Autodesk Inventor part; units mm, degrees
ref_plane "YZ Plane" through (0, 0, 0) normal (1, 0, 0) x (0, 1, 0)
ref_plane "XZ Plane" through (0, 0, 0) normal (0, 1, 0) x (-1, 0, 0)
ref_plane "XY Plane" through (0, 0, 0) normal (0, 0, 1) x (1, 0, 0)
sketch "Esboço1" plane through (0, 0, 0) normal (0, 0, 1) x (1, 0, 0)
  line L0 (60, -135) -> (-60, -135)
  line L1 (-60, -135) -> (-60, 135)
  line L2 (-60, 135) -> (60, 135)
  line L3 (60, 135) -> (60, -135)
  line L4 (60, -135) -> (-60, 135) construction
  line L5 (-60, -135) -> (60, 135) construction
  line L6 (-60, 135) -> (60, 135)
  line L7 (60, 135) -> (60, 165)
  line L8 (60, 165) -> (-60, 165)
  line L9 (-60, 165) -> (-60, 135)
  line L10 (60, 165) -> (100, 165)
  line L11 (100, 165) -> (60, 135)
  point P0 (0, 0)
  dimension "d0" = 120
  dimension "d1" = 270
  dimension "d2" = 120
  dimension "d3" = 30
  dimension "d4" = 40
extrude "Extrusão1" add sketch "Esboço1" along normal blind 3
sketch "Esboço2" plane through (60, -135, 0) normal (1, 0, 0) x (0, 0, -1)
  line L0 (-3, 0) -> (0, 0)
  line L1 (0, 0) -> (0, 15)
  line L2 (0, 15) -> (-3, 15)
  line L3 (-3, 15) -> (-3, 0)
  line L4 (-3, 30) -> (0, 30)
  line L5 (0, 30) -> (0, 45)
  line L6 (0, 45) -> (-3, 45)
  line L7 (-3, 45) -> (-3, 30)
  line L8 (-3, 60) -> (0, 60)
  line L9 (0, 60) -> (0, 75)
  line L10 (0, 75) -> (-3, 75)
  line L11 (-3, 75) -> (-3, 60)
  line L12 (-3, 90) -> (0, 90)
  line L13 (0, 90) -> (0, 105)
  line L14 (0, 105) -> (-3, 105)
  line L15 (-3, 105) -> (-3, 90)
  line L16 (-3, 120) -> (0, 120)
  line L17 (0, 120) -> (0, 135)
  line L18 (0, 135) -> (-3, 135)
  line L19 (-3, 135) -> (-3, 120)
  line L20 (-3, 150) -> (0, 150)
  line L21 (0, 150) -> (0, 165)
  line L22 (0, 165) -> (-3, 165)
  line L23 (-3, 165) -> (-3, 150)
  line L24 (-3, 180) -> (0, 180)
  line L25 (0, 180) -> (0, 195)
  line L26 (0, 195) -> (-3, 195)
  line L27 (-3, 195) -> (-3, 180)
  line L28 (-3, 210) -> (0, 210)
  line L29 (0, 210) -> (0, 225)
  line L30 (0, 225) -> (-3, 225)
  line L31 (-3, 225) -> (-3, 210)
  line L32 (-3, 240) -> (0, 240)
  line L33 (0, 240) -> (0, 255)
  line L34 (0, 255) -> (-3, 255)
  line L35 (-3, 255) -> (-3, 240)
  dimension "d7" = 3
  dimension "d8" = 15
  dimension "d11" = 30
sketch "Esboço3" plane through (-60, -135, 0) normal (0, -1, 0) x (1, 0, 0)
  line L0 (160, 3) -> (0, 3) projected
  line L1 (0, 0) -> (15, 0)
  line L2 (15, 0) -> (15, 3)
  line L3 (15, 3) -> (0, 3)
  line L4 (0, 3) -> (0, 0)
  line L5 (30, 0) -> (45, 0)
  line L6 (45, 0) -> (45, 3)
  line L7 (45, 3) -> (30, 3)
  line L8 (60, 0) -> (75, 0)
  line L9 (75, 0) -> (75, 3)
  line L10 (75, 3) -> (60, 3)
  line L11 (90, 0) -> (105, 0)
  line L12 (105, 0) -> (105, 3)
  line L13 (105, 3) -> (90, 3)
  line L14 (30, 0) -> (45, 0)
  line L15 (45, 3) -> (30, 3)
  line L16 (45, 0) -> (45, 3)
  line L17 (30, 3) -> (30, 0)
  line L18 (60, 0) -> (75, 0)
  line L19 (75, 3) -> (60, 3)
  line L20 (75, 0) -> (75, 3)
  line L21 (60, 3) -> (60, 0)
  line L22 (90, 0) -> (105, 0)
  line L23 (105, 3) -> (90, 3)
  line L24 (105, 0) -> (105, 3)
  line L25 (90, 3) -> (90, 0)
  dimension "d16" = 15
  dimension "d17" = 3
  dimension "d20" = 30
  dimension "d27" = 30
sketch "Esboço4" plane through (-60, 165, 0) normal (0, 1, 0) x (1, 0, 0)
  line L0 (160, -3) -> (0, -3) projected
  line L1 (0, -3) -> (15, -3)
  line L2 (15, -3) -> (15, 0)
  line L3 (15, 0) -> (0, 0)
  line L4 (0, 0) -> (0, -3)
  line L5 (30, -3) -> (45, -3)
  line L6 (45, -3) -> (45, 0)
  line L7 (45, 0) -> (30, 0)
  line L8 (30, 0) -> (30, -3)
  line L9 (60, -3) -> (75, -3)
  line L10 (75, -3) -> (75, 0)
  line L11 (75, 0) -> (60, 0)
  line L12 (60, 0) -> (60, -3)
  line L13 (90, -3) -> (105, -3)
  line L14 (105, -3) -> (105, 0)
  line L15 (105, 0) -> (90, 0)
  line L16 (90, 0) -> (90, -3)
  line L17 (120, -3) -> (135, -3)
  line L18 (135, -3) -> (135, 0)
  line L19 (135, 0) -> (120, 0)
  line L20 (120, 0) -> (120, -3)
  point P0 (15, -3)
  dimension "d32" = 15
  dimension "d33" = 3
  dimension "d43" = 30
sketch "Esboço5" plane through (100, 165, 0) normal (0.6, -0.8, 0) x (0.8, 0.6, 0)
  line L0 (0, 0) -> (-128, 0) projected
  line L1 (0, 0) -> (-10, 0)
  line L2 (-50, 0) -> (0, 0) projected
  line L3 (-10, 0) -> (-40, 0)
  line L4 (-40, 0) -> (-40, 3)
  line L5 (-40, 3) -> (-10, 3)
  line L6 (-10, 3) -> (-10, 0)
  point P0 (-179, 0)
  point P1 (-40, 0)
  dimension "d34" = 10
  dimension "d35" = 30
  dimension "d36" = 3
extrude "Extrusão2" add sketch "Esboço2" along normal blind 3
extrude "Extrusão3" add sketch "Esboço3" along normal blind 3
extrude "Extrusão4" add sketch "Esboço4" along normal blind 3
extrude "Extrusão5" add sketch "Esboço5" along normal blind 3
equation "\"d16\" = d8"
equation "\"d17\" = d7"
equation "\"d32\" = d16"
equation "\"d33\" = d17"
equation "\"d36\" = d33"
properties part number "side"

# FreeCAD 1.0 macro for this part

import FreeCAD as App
import Part
import Sketcher
from FreeCAD import Vector
Q = App.Units.Quantity

doc = App.newDocument("Part")
body = doc.addObject("PartDesign::Body", "Body")

# Sketch on XY plane
sketch1 = body.newObject("Sketcher::SketchObject", "Sketch")
sketch1.AttachmentSupport = (doc.getObject("XY_Plane"), [""])
sketch1.MapMode = "FlatFace"
sketch1.addGeometry([
    Part.LineSegment(Vector(-60, -135, 0), Vector(60, -135, 0)),  # 0
    Part.LineSegment(Vector(60, -135, 0), Vector(60, 135, 0)),  # 1
    Part.LineSegment(Vector(60, 135, 0), Vector(100, 165, 0)),  # 2
    Part.LineSegment(Vector(100, 165, 0), Vector(-60, 165, 0)),  # 3
    Part.LineSegment(Vector(-60, 165, 0), Vector(-60, -135, 0)),  # 4
], False)
sketch1.addConstraint([
    Sketcher.Constraint("Coincident", 0, 2, 1, 1),
    Sketcher.Constraint("Coincident", 1, 2, 2, 1),
    Sketcher.Constraint("Coincident", 2, 2, 3, 1),
    Sketcher.Constraint("Coincident", 3, 2, 4, 1),
    Sketcher.Constraint("Coincident", 4, 2, 0, 1),
    Sketcher.Constraint("Horizontal", 0),
    Sketcher.Constraint("Vertical", 1),
    Sketcher.Constraint("Horizontal", 3),
    Sketcher.Constraint("Vertical", 4),
    Sketcher.Constraint("Symmetric", 1, 2, 4, 2, -1, 1),
    Sketcher.Constraint("DistanceX", 0, 1, 0, 2, Q("120 mm")),
    Sketcher.Constraint("DistanceY", 1, 1, 1, 2, Q("270 mm")),
    Sketcher.Constraint("DistanceX", 1, 2, 2, 2, Q("40 mm")),
    Sketcher.Constraint("DistanceY", 1, 2, 2, 2, Q("30 mm")),
])
pad1 = body.newObject("PartDesign::Pad", "Pad")
pad1.Profile = sketch1
pad1.Length = 3

# Sketch on YZ plane
sketch2 = body.newObject("Sketcher::SketchObject", "Sketch001")
sketch2.AttachmentSupport = (doc.getObject("YZ_Plane"), [""])
sketch2.MapMode = "FlatFace"
sketch2.AttachmentOffset = App.Placement(Vector(0, 0, 60), App.Rotation())
sketch2.addGeometry([
    Part.LineSegment(Vector(-120, 3, 0), Vector(-135, 3, 0)),  # 0
    Part.LineSegment(Vector(-135, 3, 0), Vector(-135, 0, 0)),  # 1
    Part.LineSegment(Vector(-135, 0, 0), Vector(-120, 0, 0)),  # 2
    Part.LineSegment(Vector(-120, 0, 0), Vector(-120, 3, 0)),  # 3
    Part.LineSegment(Vector(-90, 3, 0), Vector(-105, 3, 0)),  # 4
    Part.LineSegment(Vector(-105, 3, 0), Vector(-105, 0, 0)),  # 5
    Part.LineSegment(Vector(-105, 0, 0), Vector(-90, 0, 0)),  # 6
    Part.LineSegment(Vector(-90, 0, 0), Vector(-90, 3, 0)),  # 7
    Part.LineSegment(Vector(-60, 3, 0), Vector(-75, 3, 0)),  # 8
    Part.LineSegment(Vector(-75, 3, 0), Vector(-75, 0, 0)),  # 9
    Part.LineSegment(Vector(-75, 0, 0), Vector(-60, 0, 0)),  # 10
    Part.LineSegment(Vector(-60, 0, 0), Vector(-60, 3, 0)),  # 11
    Part.LineSegment(Vector(-30, 3, 0), Vector(-45, 3, 0)),  # 12
    Part.LineSegment(Vector(-45, 3, 0), Vector(-45, 0, 0)),  # 13
    Part.LineSegment(Vector(-45, 0, 0), Vector(-30, 0, 0)),  # 14
    Part.LineSegment(Vector(-30, 0, 0), Vector(-30, 3, 0)),  # 15
    Part.LineSegment(Vector(0, 3, 0), Vector(-15, 3, 0)),  # 16
    Part.LineSegment(Vector(-15, 3, 0), Vector(-15, 0, 0)),  # 17
    Part.LineSegment(Vector(-15, 0, 0), Vector(0, 0, 0)),  # 18
    Part.LineSegment(Vector(0, 0, 0), Vector(0, 3, 0)),  # 19
    Part.LineSegment(Vector(30, 3, 0), Vector(15, 3, 0)),  # 20
    Part.LineSegment(Vector(15, 3, 0), Vector(15, 0, 0)),  # 21
    Part.LineSegment(Vector(15, 0, 0), Vector(30, 0, 0)),  # 22
    Part.LineSegment(Vector(30, 0, 0), Vector(30, 3, 0)),  # 23
    Part.LineSegment(Vector(60, 3, 0), Vector(45, 3, 0)),  # 24
    Part.LineSegment(Vector(45, 3, 0), Vector(45, 0, 0)),  # 25
    Part.LineSegment(Vector(45, 0, 0), Vector(60, 0, 0)),  # 26
    Part.LineSegment(Vector(60, 0, 0), Vector(60, 3, 0)),  # 27
    Part.LineSegment(Vector(90, 3, 0), Vector(75, 3, 0)),  # 28
    Part.LineSegment(Vector(75, 3, 0), Vector(75, 0, 0)),  # 29
    Part.LineSegment(Vector(75, 0, 0), Vector(90, 0, 0)),  # 30
    Part.LineSegment(Vector(90, 0, 0), Vector(90, 3, 0)),  # 31
    Part.LineSegment(Vector(120, 3, 0), Vector(105, 3, 0)),  # 32
    Part.LineSegment(Vector(105, 3, 0), Vector(105, 0, 0)),  # 33
    Part.LineSegment(Vector(105, 0, 0), Vector(120, 0, 0)),  # 34
    Part.LineSegment(Vector(120, 0, 0), Vector(120, 3, 0)),  # 35
], False)
sketch2.addConstraint([
    Sketcher.Constraint("Coincident", 0, 2, 1, 1),
    Sketcher.Constraint("Coincident", 1, 2, 2, 1),
    Sketcher.Constraint("Coincident", 2, 2, 3, 1),
    Sketcher.Constraint("Coincident", 3, 2, 0, 1),
    Sketcher.Constraint("Coincident", 4, 2, 5, 1),
    Sketcher.Constraint("Coincident", 5, 2, 6, 1),
    Sketcher.Constraint("Coincident", 6, 2, 7, 1),
    Sketcher.Constraint("Coincident", 7, 2, 4, 1),
    Sketcher.Constraint("Coincident", 8, 2, 9, 1),
    Sketcher.Constraint("Coincident", 9, 2, 10, 1),
    Sketcher.Constraint("Coincident", 10, 2, 11, 1),
    Sketcher.Constraint("Coincident", 11, 2, 8, 1),
    Sketcher.Constraint("Coincident", 12, 2, 13, 1),
    Sketcher.Constraint("Coincident", 13, 2, 14, 1),
    Sketcher.Constraint("Coincident", 14, 2, 15, 1),
    Sketcher.Constraint("Coincident", 15, 2, 12, 1),
    Sketcher.Constraint("Coincident", 16, 2, 17, 1),
    Sketcher.Constraint("Coincident", 17, 2, 18, 1),
    Sketcher.Constraint("Coincident", 18, 2, 19, 1),
    Sketcher.Constraint("Coincident", 19, 2, 16, 1),
    Sketcher.Constraint("Coincident", 20, 2, 21, 1),
    Sketcher.Constraint("Coincident", 21, 2, 22, 1),
    Sketcher.Constraint("Coincident", 22, 2, 23, 1),
    Sketcher.Constraint("Coincident", 23, 2, 20, 1),
    Sketcher.Constraint("Coincident", 24, 2, 25, 1),
    Sketcher.Constraint("Coincident", 25, 2, 26, 1),
    Sketcher.Constraint("Coincident", 26, 2, 27, 1),
    Sketcher.Constraint("Coincident", 27, 2, 24, 1),
    Sketcher.Constraint("Coincident", 28, 2, 29, 1),
    Sketcher.Constraint("Coincident", 29, 2, 30, 1),
    Sketcher.Constraint("Coincident", 30, 2, 31, 1),
    Sketcher.Constraint("Coincident", 31, 2, 28, 1),
    Sketcher.Constraint("Coincident", 32, 2, 33, 1),
    Sketcher.Constraint("Coincident", 33, 2, 34, 1),
    Sketcher.Constraint("Coincident", 34, 2, 35, 1),
    Sketcher.Constraint("Coincident", 35, 2, 32, 1),
    Sketcher.Constraint("Horizontal", 0),
    Sketcher.Constraint("Vertical", 1),
    Sketcher.Constraint("Horizontal", 2),
    Sketcher.Constraint("Vertical", 3),
    Sketcher.Constraint("Horizontal", 4),
    Sketcher.Constraint("Vertical", 5),
    Sketcher.Constraint("Horizontal", 6),
    Sketcher.Constraint("Vertical", 7),
    Sketcher.Constraint("Horizontal", 8),
    Sketcher.Constraint("Vertical", 9),
    Sketcher.Constraint("Horizontal", 10),
    Sketcher.Constraint("Vertical", 11),
    Sketcher.Constraint("Horizontal", 12),
    Sketcher.Constraint("Vertical", 13),
    Sketcher.Constraint("Horizontal", 14),
    Sketcher.Constraint("Vertical", 15),
    Sketcher.Constraint("Horizontal", 16),
    Sketcher.Constraint("Vertical", 17),
    Sketcher.Constraint("Horizontal", 18),
    Sketcher.Constraint("Vertical", 19),
    Sketcher.Constraint("Horizontal", 20),
    Sketcher.Constraint("Vertical", 21),
    Sketcher.Constraint("Horizontal", 22),
    Sketcher.Constraint("Vertical", 23),
    Sketcher.Constraint("Horizontal", 24),
    Sketcher.Constraint("Vertical", 25),
    Sketcher.Constraint("Horizontal", 26),
    Sketcher.Constraint("Vertical", 27),
    Sketcher.Constraint("Horizontal", 28),
    Sketcher.Constraint("Vertical", 29),
    Sketcher.Constraint("Horizontal", 30),
    Sketcher.Constraint("Vertical", 31),
    Sketcher.Constraint("Horizontal", 32),
    Sketcher.Constraint("Vertical", 33),
    Sketcher.Constraint("Horizontal", 34),
    Sketcher.Constraint("Vertical", 35),
    Sketcher.Constraint("Coincident", 18, 2, -1, 1),
    Sketcher.Constraint("Symmetric", 17, 2, 21, 2, -1, 1),
    Sketcher.Constraint("Symmetric", 14, 2, 22, 2, -1, 1),
    Sketcher.Constraint("Symmetric", 13, 2, 25, 2, -1, 1),
    Sketcher.Constraint("Symmetric", 10, 2, 26, 2, -1, 1),
    Sketcher.Constraint("Symmetric", 9, 2, 29, 2, -1, 1),
    Sketcher.Constraint("Symmetric", 6, 2, 30, 2, -1, 1),
    Sketcher.Constraint("Symmetric", 5, 2, 33, 2, -1, 1),
    Sketcher.Constraint("Symmetric", 2, 2, 34, 2, -1, 1),
    Sketcher.Constraint("Horizontal", 3, 2, 4, 2),
    Sketcher.Constraint("Horizontal", 7, 2, 8, 2),
    Sketcher.Constraint("Horizontal", 11, 2, 12, 2),
    Sketcher.Constraint("Horizontal", 15, 2, 16, 2),
    Sketcher.Constraint("Horizontal", 19, 2, 20, 2),
    Sketcher.Constraint("Horizontal", 23, 2, 24, 2),
    Sketcher.Constraint("Horizontal", 27, 2, 28, 2),
    Sketcher.Constraint("Horizontal", 31, 2, 32, 2),
    Sketcher.Constraint("Equal", 2, 4),
    Sketcher.Constraint("Equal", 6, 8),
    Sketcher.Constraint("Equal", 10, 12),
    Sketcher.Constraint("Equal", 14, 16),
    Sketcher.Constraint("Equal", 18, 20),
    Sketcher.Constraint("Equal", 22, 24),
    Sketcher.Constraint("Equal", 26, 28),
    Sketcher.Constraint("Equal", 30, 32),
    Sketcher.Constraint("DistanceX", 0, 2, 0, 1, Q("15 mm")),
    Sketcher.Constraint("DistanceY", 1, 2, 1, 1, Q("3 mm")),
])
pad2 = body.newObject("PartDesign::Pad", "Pad001")
pad2.Profile = sketch2
pad2.Length = 3

# Sketch on XZ plane
sketch3 = body.newObject("Sketcher::SketchObject", "Sketch002")
sketch3.AttachmentSupport = (doc.getObject("XZ_Plane"), [""])
sketch3.MapMode = "FlatFace"
sketch3.AttachmentOffset = App.Placement(Vector(0, 0, 135), App.Rotation())
sketch3.addGeometry([
    Part.LineSegment(Vector(45, 0, 0), Vector(45, 3, 0)),  # 0
    Part.LineSegment(Vector(45, 3, 0), Vector(30, 3, 0)),  # 1
    Part.LineSegment(Vector(30, 3, 0), Vector(30, 0, 0)),  # 2
    Part.LineSegment(Vector(30, 0, 0), Vector(45, 0, 0)),  # 3
    Part.LineSegment(Vector(-45, 0, 0), Vector(-45, 3, 0)),  # 4
    Part.LineSegment(Vector(-45, 3, 0), Vector(-60, 3, 0)),  # 5
    Part.LineSegment(Vector(-60, 3, 0), Vector(-60, 0, 0)),  # 6
    Part.LineSegment(Vector(-60, 0, 0), Vector(-45, 0, 0)),  # 7
    Part.LineSegment(Vector(-15, 0, 0), Vector(-15, 3, 0)),  # 8
    Part.LineSegment(Vector(-15, 3, 0), Vector(-30, 3, 0)),  # 9
    Part.LineSegment(Vector(-30, 3, 0), Vector(-30, 0, 0)),  # 10
    Part.LineSegment(Vector(-30, 0, 0), Vector(-15, 0, 0)),  # 11
    Part.LineSegment(Vector(15, 0, 0), Vector(15, 3, 0)),  # 12
    Part.LineSegment(Vector(15, 3, 0), Vector(0, 3, 0)),  # 13
    Part.LineSegment(Vector(0, 3, 0), Vector(0, 0, 0)),  # 14
    Part.LineSegment(Vector(0, 0, 0), Vector(15, 0, 0)),  # 15
], False)
sketch3.addConstraint([
    Sketcher.Constraint("Coincident", 0, 2, 1, 1),
    Sketcher.Constraint("Coincident", 1, 2, 2, 1),
    Sketcher.Constraint("Coincident", 2, 2, 3, 1),
    Sketcher.Constraint("Coincident", 3, 2, 0, 1),
    Sketcher.Constraint("Coincident", 4, 2, 5, 1),
    Sketcher.Constraint("Coincident", 5, 2, 6, 1),
    Sketcher.Constraint("Coincident", 6, 2, 7, 1),
    Sketcher.Constraint("Coincident", 7, 2, 4, 1),
    Sketcher.Constraint("Coincident", 8, 2, 9, 1),
    Sketcher.Constraint("Coincident", 9, 2, 10, 1),
    Sketcher.Constraint("Coincident", 10, 2, 11, 1),
    Sketcher.Constraint("Coincident", 11, 2, 8, 1),
    Sketcher.Constraint("Coincident", 12, 2, 13, 1),
    Sketcher.Constraint("Coincident", 13, 2, 14, 1),
    Sketcher.Constraint("Coincident", 14, 2, 15, 1),
    Sketcher.Constraint("Coincident", 15, 2, 12, 1),
    Sketcher.Constraint("Vertical", 0),
    Sketcher.Constraint("Horizontal", 1),
    Sketcher.Constraint("Vertical", 2),
    Sketcher.Constraint("Horizontal", 3),
    Sketcher.Constraint("Vertical", 4),
    Sketcher.Constraint("Horizontal", 5),
    Sketcher.Constraint("Vertical", 6),
    Sketcher.Constraint("Horizontal", 7),
    Sketcher.Constraint("Vertical", 8),
    Sketcher.Constraint("Horizontal", 9),
    Sketcher.Constraint("Vertical", 10),
    Sketcher.Constraint("Horizontal", 11),
    Sketcher.Constraint("Vertical", 12),
    Sketcher.Constraint("Horizontal", 13),
    Sketcher.Constraint("Vertical", 14),
    Sketcher.Constraint("Horizontal", 15),
    Sketcher.Constraint("Coincident", 14, 2, -1, 1),
    Sketcher.Constraint("Symmetric", 3, 2, 7, 2, -1, 1),
    Sketcher.Constraint("Symmetric", 2, 2, 10, 2, -1, 1),
    Sketcher.Constraint("Symmetric", 11, 2, 15, 2, -1, 1),
    Sketcher.Constraint("Horizontal", 1, 2, 4, 2),
    Sketcher.Constraint("Horizontal", 5, 2, 8, 2),
    Sketcher.Constraint("Horizontal", 9, 2, 12, 2),
    Sketcher.Constraint("Equal", 3, 5),
    Sketcher.Constraint("Equal", 7, 9),
    Sketcher.Constraint("Equal", 11, 13),
    Sketcher.Constraint("DistanceX", 1, 2, 1, 1, Q("15 mm")),
    Sketcher.Constraint("DistanceY", 0, 1, 0, 2, Q("3 mm")),
])
pad3 = body.newObject("PartDesign::Pad", "Pad002")
pad3.Profile = sketch3
pad3.Length = 3

# Sketch on XZ plane
sketch4 = body.newObject("Sketcher::SketchObject", "Sketch003")
sketch4.AttachmentSupport = (doc.getObject("XZ_Plane"), [""])
sketch4.MapMode = "FlatFace"
sketch4.AttachmentOffset = App.Placement(Vector(0, 0, -165), App.Rotation())
sketch4.addGeometry([
    Part.LineSegment(Vector(-60, 3, 0), Vector(-45, 3, 0)),  # 0
    Part.LineSegment(Vector(-45, 3, 0), Vector(-45, 0, 0)),  # 1
    Part.LineSegment(Vector(-45, 0, 0), Vector(-60, 0, 0)),  # 2
    Part.LineSegment(Vector(-60, 0, 0), Vector(-60, 3, 0)),  # 3
    Part.LineSegment(Vector(-30, 3, 0), Vector(-15, 3, 0)),  # 4
    Part.LineSegment(Vector(-15, 3, 0), Vector(-15, 0, 0)),  # 5
    Part.LineSegment(Vector(-15, 0, 0), Vector(-30, 0, 0)),  # 6
    Part.LineSegment(Vector(-30, 0, 0), Vector(-30, 3, 0)),  # 7
    Part.LineSegment(Vector(0, 3, 0), Vector(15, 3, 0)),  # 8
    Part.LineSegment(Vector(15, 3, 0), Vector(15, 0, 0)),  # 9
    Part.LineSegment(Vector(15, 0, 0), Vector(0, 0, 0)),  # 10
    Part.LineSegment(Vector(0, 0, 0), Vector(0, 3, 0)),  # 11
    Part.LineSegment(Vector(30, 3, 0), Vector(45, 3, 0)),  # 12
    Part.LineSegment(Vector(45, 3, 0), Vector(45, 0, 0)),  # 13
    Part.LineSegment(Vector(45, 0, 0), Vector(30, 0, 0)),  # 14
    Part.LineSegment(Vector(30, 0, 0), Vector(30, 3, 0)),  # 15
    Part.LineSegment(Vector(60, 3, 0), Vector(75, 3, 0)),  # 16
    Part.LineSegment(Vector(75, 3, 0), Vector(75, 0, 0)),  # 17
    Part.LineSegment(Vector(75, 0, 0), Vector(60, 0, 0)),  # 18
    Part.LineSegment(Vector(60, 0, 0), Vector(60, 3, 0)),  # 19
], False)
sketch4.addConstraint([
    Sketcher.Constraint("Coincident", 0, 2, 1, 1),
    Sketcher.Constraint("Coincident", 1, 2, 2, 1),
    Sketcher.Constraint("Coincident", 2, 2, 3, 1),
    Sketcher.Constraint("Coincident", 3, 2, 0, 1),
    Sketcher.Constraint("Coincident", 4, 2, 5, 1),
    Sketcher.Constraint("Coincident", 5, 2, 6, 1),
    Sketcher.Constraint("Coincident", 6, 2, 7, 1),
    Sketcher.Constraint("Coincident", 7, 2, 4, 1),
    Sketcher.Constraint("Coincident", 8, 2, 9, 1),
    Sketcher.Constraint("Coincident", 9, 2, 10, 1),
    Sketcher.Constraint("Coincident", 10, 2, 11, 1),
    Sketcher.Constraint("Coincident", 11, 2, 8, 1),
    Sketcher.Constraint("Coincident", 12, 2, 13, 1),
    Sketcher.Constraint("Coincident", 13, 2, 14, 1),
    Sketcher.Constraint("Coincident", 14, 2, 15, 1),
    Sketcher.Constraint("Coincident", 15, 2, 12, 1),
    Sketcher.Constraint("Coincident", 16, 2, 17, 1),
    Sketcher.Constraint("Coincident", 17, 2, 18, 1),
    Sketcher.Constraint("Coincident", 18, 2, 19, 1),
    Sketcher.Constraint("Coincident", 19, 2, 16, 1),
    Sketcher.Constraint("Horizontal", 0),
    Sketcher.Constraint("Vertical", 1),
    Sketcher.Constraint("Horizontal", 2),
    Sketcher.Constraint("Vertical", 3),
    Sketcher.Constraint("Horizontal", 4),
    Sketcher.Constraint("Vertical", 5),
    Sketcher.Constraint("Horizontal", 6),
    Sketcher.Constraint("Vertical", 7),
    Sketcher.Constraint("Horizontal", 8),
    Sketcher.Constraint("Vertical", 9),
    Sketcher.Constraint("Horizontal", 10),
    Sketcher.Constraint("Vertical", 11),
    Sketcher.Constraint("Horizontal", 12),
    Sketcher.Constraint("Vertical", 13),
    Sketcher.Constraint("Horizontal", 14),
    Sketcher.Constraint("Vertical", 15),
    Sketcher.Constraint("Horizontal", 16),
    Sketcher.Constraint("Vertical", 17),
    Sketcher.Constraint("Horizontal", 18),
    Sketcher.Constraint("Vertical", 19),
    Sketcher.Constraint("Coincident", 10, 2, -1, 1),
    Sketcher.Constraint("Symmetric", 5, 2, 9, 2, -1, 1),
    Sketcher.Constraint("Symmetric", 1, 2, 13, 2, -1, 1),
    Sketcher.Constraint("Symmetric", 6, 2, 14, 2, -1, 1),
    Sketcher.Constraint("Symmetric", 2, 2, 18, 2, -1, 1),
    Sketcher.Constraint("Horizontal", 3, 2, 4, 2),
    Sketcher.Constraint("Horizontal", 7, 2, 8, 2),
    Sketcher.Constraint("Horizontal", 11, 2, 12, 2),
    Sketcher.Constraint("Horizontal", 15, 2, 16, 2),
    Sketcher.Constraint("Equal", 2, 4),
    Sketcher.Constraint("Equal", 6, 8),
    Sketcher.Constraint("Equal", 10, 12),
    Sketcher.Constraint("Equal", 14, 16),
    Sketcher.Constraint("DistanceX", 0, 1, 0, 2, Q("15 mm")),
    Sketcher.Constraint("DistanceY", 1, 2, 1, 1, Q("3 mm")),
])
pad4 = body.newObject("PartDesign::Pad", "Pad003")
pad4.Profile = sketch4
pad4.Length = 3
pad4.Reversed = True

# Sketch on an angled plane
sketch5 = body.newObject("Sketcher::SketchObject", "Sketch004")
sketch5.Placement = App.Placement(Vector(100, 165, 0), App.Rotation(Vector(0.8, 0.6, 0), Vector(0, 0, 1), Vector(0.6, -0.8, 0), "ZXY"))
sketch5.addGeometry([
    Part.LineSegment(Vector(-40, 0, 0), Vector(-10, 0, 0)),
    Part.LineSegment(Vector(-10, 0, 0), Vector(-10, 3, 0)),
    Part.LineSegment(Vector(-10, 3, 0), Vector(-40, 3, 0)),
    Part.LineSegment(Vector(-40, 3, 0), Vector(-40, 0, 0)),
], False)
sketch5.addConstraint([
    Sketcher.Constraint("Coincident", 0, 2, 1, 1),
    Sketcher.Constraint("Coincident", 1, 2, 2, 1),
    Sketcher.Constraint("Coincident", 2, 2, 3, 1),
    Sketcher.Constraint("Coincident", 3, 2, 0, 1),
    Sketcher.Constraint("Horizontal", 0),
    Sketcher.Constraint("Vertical", 1),
    Sketcher.Constraint("Horizontal", 2),
    Sketcher.Constraint("Vertical", 3),
    Sketcher.Constraint("PointOnObject", 0, 2, -1),
    Sketcher.Constraint("DistanceX", 0, 1, 0, 2, Q("30 mm")),
    Sketcher.Constraint("DistanceY", 1, 1, 1, 2, Q("3 mm")),
    Sketcher.Constraint("DistanceX", 0, 2, -1, 1, Q("10 mm")),
])
pad5 = body.newObject("PartDesign::Pad", "Pad004")
pad5.Profile = sketch5
pad5.Length = 3

doc.recompute()
